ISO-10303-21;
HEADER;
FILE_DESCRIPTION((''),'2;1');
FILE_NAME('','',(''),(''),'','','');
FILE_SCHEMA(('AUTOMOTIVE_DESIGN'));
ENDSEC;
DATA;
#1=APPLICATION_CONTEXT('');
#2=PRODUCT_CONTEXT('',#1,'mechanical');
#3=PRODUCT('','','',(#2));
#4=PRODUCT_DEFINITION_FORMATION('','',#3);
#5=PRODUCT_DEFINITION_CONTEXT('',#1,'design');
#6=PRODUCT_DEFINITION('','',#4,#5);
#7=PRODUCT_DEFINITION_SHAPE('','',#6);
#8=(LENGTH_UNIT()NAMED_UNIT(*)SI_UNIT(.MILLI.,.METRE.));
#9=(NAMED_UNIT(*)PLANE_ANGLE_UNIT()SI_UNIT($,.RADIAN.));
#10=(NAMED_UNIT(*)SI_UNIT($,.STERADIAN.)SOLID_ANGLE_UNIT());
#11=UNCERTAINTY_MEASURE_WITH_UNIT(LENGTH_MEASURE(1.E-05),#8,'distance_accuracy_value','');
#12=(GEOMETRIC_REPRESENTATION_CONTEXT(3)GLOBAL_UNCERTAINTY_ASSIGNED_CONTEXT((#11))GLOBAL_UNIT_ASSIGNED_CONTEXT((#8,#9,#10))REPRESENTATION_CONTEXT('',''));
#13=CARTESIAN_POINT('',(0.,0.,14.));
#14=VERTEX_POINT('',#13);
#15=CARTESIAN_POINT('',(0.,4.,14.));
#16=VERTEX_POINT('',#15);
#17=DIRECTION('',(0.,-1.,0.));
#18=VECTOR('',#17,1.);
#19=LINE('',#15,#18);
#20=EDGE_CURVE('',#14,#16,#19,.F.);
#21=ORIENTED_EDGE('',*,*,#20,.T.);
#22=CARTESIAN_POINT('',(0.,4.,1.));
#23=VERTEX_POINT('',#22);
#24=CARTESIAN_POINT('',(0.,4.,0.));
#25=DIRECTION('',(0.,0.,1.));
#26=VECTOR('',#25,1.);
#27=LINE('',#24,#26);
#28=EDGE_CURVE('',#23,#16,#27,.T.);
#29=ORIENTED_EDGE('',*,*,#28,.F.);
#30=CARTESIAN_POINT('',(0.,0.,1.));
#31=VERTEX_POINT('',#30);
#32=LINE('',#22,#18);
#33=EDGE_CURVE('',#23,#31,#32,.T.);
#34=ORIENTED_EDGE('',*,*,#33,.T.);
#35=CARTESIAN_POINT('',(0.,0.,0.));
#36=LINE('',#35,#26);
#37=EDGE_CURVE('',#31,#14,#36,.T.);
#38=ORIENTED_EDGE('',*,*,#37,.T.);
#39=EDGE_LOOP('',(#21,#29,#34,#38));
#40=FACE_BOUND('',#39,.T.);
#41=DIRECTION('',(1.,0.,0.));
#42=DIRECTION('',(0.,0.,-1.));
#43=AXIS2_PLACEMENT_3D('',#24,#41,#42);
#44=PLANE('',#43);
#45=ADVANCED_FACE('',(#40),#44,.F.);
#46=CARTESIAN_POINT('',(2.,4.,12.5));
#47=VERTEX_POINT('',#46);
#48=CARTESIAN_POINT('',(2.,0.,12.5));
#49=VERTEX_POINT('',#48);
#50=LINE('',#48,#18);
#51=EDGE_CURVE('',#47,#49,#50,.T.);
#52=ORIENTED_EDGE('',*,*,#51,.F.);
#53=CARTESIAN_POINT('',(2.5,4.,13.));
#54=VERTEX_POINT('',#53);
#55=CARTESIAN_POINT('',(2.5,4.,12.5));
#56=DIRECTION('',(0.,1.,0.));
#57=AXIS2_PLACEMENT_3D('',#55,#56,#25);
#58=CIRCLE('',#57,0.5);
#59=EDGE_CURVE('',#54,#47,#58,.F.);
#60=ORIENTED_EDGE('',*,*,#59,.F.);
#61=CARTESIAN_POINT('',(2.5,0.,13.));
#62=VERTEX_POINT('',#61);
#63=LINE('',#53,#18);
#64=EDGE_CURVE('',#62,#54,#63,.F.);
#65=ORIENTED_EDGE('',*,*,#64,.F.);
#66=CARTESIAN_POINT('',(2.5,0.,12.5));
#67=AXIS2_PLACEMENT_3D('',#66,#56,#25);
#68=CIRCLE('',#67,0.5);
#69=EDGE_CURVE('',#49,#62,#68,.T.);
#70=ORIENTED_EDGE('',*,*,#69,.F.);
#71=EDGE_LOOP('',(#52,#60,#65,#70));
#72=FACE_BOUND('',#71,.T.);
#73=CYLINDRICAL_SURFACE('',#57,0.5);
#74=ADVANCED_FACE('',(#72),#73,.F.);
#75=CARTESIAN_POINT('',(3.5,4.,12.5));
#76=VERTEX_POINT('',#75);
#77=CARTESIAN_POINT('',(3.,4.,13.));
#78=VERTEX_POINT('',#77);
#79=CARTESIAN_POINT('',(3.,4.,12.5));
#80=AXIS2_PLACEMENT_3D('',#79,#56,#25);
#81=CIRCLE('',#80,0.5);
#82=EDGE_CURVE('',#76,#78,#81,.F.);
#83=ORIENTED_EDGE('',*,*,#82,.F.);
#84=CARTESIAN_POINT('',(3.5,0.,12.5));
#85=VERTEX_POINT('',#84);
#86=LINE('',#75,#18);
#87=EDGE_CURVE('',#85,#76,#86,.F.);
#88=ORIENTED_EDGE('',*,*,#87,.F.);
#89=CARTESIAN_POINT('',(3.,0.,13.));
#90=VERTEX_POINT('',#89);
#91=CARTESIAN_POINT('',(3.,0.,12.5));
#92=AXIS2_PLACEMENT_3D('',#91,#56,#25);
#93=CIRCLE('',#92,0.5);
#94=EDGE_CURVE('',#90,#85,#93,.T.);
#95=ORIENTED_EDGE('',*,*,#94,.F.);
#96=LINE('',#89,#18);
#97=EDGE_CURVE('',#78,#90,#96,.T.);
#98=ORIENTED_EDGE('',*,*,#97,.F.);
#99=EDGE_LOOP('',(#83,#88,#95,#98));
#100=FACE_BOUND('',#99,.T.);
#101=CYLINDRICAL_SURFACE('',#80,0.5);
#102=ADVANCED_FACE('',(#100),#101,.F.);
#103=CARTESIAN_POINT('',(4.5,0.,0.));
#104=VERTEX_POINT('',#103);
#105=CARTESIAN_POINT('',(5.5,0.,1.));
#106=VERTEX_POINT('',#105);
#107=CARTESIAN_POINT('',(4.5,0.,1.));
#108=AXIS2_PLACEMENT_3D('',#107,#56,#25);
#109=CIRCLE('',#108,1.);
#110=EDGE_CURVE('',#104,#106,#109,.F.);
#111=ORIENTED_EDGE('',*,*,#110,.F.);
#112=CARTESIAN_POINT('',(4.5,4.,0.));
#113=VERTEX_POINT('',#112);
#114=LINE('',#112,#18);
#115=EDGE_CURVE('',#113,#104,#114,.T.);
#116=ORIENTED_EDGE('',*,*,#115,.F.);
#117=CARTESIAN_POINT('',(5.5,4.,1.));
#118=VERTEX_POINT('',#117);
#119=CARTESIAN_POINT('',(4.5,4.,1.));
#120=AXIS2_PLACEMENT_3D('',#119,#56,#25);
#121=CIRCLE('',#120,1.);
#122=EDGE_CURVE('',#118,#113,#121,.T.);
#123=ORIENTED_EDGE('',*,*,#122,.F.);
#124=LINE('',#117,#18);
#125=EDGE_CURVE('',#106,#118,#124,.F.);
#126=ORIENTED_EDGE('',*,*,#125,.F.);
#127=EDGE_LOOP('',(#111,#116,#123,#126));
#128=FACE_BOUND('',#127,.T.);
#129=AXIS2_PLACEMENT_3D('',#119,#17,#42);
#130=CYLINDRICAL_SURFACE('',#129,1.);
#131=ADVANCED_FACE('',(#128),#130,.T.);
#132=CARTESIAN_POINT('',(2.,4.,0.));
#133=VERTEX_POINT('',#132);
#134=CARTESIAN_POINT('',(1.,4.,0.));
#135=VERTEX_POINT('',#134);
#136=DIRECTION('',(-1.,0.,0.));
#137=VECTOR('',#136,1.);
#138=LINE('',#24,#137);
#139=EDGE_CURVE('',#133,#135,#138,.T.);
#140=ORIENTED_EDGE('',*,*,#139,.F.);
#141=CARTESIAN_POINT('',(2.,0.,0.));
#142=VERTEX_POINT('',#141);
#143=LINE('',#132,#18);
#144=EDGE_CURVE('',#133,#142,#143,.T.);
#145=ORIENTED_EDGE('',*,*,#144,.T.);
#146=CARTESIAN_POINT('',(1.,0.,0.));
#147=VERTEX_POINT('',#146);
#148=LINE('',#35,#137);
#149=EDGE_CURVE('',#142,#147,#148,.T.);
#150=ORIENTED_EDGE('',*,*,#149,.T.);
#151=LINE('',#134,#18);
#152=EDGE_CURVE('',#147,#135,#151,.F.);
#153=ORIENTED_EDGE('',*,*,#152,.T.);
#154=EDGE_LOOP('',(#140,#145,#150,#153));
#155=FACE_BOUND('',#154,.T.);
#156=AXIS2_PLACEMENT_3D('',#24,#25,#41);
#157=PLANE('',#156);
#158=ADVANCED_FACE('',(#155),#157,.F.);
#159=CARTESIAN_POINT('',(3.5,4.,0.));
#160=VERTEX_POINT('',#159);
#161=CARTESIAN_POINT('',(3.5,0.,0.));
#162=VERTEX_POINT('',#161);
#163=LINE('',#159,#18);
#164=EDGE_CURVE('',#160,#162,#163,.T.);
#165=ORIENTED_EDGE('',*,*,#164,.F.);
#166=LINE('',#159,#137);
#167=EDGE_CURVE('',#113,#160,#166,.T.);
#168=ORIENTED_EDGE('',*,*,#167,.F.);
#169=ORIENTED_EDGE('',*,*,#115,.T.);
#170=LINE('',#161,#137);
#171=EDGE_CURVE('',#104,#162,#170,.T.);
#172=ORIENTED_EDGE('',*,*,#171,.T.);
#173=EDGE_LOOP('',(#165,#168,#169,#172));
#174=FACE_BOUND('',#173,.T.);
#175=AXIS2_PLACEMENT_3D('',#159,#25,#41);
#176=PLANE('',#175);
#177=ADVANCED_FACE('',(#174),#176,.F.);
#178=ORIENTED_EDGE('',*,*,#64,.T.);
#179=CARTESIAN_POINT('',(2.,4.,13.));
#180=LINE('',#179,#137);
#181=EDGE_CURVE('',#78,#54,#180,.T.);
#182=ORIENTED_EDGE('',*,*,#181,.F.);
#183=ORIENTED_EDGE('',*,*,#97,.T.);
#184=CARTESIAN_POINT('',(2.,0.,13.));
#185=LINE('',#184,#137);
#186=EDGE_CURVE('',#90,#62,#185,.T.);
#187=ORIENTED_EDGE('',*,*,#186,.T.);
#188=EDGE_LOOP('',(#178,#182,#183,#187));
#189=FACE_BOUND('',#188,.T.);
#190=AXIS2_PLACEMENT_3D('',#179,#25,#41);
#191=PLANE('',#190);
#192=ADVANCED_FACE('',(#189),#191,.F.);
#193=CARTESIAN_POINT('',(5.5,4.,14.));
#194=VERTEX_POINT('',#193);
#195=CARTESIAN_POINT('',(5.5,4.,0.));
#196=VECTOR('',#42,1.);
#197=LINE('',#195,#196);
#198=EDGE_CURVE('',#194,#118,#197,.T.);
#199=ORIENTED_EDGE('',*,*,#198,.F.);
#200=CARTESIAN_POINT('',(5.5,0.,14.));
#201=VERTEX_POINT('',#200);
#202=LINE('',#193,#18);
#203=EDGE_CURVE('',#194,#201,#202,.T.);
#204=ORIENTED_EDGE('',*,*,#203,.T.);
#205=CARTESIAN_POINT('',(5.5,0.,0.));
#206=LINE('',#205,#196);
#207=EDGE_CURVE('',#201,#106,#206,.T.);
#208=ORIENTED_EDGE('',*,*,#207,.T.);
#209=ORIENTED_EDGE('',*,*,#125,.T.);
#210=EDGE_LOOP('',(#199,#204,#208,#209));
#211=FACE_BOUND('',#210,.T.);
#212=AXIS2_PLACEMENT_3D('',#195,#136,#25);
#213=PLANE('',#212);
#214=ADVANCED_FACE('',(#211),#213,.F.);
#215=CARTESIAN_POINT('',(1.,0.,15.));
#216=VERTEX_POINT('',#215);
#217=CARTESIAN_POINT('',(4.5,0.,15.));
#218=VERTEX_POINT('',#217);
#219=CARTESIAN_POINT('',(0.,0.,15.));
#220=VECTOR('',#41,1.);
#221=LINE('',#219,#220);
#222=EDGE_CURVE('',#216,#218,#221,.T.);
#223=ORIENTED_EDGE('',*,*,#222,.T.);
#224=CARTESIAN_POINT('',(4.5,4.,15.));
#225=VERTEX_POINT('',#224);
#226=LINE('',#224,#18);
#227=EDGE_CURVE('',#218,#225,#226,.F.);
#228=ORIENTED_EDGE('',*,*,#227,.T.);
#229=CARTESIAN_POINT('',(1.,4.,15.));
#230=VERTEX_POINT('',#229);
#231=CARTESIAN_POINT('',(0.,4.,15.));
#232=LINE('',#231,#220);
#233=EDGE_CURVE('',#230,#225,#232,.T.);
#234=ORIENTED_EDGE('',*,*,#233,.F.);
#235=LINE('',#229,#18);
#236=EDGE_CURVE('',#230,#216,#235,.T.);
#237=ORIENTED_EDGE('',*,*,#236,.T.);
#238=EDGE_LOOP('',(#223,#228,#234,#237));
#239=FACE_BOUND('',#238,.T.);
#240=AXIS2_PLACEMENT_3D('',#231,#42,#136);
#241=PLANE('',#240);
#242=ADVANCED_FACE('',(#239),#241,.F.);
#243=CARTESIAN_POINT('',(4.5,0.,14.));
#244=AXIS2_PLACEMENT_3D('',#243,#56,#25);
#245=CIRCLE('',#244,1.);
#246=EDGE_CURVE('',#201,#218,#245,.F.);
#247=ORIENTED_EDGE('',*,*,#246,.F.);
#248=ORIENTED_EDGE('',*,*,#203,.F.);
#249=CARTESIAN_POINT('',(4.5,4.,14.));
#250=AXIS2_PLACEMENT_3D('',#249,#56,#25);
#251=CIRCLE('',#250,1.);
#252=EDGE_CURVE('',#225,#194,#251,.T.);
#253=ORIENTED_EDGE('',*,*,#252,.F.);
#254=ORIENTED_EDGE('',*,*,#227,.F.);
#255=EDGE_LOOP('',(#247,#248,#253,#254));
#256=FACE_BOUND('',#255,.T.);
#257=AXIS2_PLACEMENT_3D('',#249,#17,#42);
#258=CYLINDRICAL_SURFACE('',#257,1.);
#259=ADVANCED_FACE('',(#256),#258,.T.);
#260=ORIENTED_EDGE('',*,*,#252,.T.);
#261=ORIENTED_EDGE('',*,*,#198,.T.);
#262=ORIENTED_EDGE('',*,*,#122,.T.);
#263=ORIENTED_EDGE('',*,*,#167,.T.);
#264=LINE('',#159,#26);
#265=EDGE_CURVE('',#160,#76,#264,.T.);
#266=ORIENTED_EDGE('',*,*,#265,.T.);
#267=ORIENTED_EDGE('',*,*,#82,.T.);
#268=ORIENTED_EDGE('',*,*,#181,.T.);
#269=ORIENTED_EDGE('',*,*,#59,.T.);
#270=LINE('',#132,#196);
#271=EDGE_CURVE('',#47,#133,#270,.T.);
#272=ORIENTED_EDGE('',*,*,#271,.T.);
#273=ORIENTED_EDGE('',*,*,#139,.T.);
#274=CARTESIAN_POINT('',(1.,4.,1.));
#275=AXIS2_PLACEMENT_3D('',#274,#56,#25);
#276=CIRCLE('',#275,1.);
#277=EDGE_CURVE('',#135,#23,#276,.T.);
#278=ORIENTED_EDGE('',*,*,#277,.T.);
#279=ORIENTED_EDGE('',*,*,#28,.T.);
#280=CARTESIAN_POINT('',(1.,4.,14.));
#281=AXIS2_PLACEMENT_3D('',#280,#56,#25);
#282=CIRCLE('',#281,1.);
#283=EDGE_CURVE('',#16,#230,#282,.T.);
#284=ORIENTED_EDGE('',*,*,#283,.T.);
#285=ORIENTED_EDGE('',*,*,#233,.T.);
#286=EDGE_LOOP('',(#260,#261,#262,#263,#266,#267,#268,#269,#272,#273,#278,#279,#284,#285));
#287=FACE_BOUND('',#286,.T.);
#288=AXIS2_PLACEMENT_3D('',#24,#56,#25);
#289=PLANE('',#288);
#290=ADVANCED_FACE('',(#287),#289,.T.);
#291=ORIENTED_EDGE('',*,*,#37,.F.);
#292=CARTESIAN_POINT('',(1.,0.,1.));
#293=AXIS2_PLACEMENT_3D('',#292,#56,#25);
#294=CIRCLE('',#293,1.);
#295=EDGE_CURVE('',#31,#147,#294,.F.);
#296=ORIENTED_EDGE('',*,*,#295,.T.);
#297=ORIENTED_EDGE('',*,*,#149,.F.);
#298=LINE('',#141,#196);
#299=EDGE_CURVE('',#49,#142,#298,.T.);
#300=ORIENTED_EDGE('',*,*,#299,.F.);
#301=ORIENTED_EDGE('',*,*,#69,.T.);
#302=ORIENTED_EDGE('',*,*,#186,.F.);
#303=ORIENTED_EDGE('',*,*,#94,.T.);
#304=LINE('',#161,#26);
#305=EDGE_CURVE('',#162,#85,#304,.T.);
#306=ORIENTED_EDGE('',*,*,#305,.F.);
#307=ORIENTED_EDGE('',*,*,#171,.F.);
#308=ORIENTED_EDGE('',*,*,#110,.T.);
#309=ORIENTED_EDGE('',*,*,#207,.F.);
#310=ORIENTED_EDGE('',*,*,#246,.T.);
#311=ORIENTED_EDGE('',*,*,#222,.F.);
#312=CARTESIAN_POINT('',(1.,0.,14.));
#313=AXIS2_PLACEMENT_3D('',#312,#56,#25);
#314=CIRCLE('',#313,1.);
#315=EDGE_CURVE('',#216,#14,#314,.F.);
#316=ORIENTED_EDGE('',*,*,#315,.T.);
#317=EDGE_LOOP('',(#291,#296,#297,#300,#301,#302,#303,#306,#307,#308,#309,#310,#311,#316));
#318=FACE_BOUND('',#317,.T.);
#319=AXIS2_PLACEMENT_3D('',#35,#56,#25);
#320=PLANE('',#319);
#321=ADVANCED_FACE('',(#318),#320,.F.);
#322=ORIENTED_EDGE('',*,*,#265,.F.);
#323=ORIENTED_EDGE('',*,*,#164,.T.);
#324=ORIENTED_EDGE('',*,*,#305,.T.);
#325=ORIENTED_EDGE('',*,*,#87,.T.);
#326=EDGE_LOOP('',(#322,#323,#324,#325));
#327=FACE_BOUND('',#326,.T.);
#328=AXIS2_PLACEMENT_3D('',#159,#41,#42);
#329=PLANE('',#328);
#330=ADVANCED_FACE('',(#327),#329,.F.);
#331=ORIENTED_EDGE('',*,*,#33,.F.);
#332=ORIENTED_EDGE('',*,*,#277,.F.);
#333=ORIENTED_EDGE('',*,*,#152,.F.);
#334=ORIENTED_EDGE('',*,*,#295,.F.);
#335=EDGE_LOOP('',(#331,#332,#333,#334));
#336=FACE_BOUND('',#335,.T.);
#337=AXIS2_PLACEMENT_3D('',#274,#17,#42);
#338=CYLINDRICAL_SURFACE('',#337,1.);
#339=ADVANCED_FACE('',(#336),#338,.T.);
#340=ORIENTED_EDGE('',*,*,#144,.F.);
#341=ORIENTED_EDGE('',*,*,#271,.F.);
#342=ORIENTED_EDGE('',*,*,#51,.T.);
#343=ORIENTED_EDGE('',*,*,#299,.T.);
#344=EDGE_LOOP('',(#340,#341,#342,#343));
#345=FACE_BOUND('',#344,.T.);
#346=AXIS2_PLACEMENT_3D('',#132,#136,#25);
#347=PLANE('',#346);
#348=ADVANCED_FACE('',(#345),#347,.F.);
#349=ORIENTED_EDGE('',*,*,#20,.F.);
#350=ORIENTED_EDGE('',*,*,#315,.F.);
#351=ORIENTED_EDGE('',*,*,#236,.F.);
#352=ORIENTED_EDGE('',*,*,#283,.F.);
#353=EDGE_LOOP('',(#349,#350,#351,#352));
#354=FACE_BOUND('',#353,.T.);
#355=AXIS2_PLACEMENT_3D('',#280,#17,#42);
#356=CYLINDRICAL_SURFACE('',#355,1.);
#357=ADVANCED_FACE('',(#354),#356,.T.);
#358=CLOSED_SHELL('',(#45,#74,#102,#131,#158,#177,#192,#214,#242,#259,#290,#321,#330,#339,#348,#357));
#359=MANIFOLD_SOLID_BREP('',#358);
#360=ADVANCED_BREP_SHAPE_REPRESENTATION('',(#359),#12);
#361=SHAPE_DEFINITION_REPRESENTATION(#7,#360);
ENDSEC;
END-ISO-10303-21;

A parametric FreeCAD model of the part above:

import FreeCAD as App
import Part
import Sketcher
Q = App.Units.Quantity


def edges_at(feature, points):
    """Names of the edges that pass closest to the given points."""
    edges = feature.Shape.Edges
    near = lambda p: min(range(len(edges)), key=lambda i: edges[i].distToShape(Part.Vertex(*p))[0])
    return sorted({f"Edge{near(p) + 1}" for p in points})

doc = App.newDocument("Part")
body = doc.addObject("PartDesign::Body", "Body")

sketch1 = body.newObject("Sketcher::SketchObject", "Sketch")
sketch1.AttachmentSupport = (doc.getObject("XZ_Plane"), [""])
sketch1.MapMode = "FlatFace"
sketch1.addGeometry(Part.LineSegment(App.Vector(5.5, 0, 0), App.Vector(3.5, 0, 0)), False)
sketch1.addGeometry(Part.LineSegment(App.Vector(3.5, 0, 0), App.Vector(3.5, 13, 0)), False)
sketch1.addGeometry(Part.LineSegment(App.Vector(3.5, 13, 0), App.Vector(2, 13, 0)), False)
sketch1.addGeometry(Part.LineSegment(App.Vector(2, 13, 0), App.Vector(2, 0, 0)), False)
sketch1.addGeometry(Part.LineSegment(App.Vector(2, 0, 0), App.Vector(0, 0, 0)), False)
sketch1.addGeometry(Part.LineSegment(App.Vector(0, 0, 0), App.Vector(0, 15, 0)), False)
sketch1.addGeometry(Part.LineSegment(App.Vector(0, 15, 0), App.Vector(5.5, 15, 0)), False)
sketch1.addGeometry(Part.LineSegment(App.Vector(5.5, 15, 0), App.Vector(5.5, 0, 0)), False)
sketch1.addConstraint(Sketcher.Constraint("Coincident", 0, 2, 1, 1))
sketch1.addConstraint(Sketcher.Constraint("Coincident", 1, 2, 2, 1))
sketch1.addConstraint(Sketcher.Constraint("Coincident", 2, 2, 3, 1))
sketch1.addConstraint(Sketcher.Constraint("Coincident", 3, 2, 4, 1))
sketch1.addConstraint(Sketcher.Constraint("Coincident", 4, 2, 5, 1))
sketch1.addConstraint(Sketcher.Constraint("Coincident", 5, 2, 6, 1))
sketch1.addConstraint(Sketcher.Constraint("Coincident", 6, 2, 7, 1))
sketch1.addConstraint(Sketcher.Constraint("Coincident", 7, 2, 0, 1))
sketch1.addConstraint(Sketcher.Constraint("Horizontal", 0))
sketch1.addConstraint(Sketcher.Constraint("Vertical", 1))
sketch1.addConstraint(Sketcher.Constraint("Horizontal", 2))
sketch1.addConstraint(Sketcher.Constraint("Vertical", 3))
sketch1.addConstraint(Sketcher.Constraint("Horizontal", 4))
sketch1.addConstraint(Sketcher.Constraint("Vertical", 5))
sketch1.addConstraint(Sketcher.Constraint("Horizontal", 6))
sketch1.addConstraint(Sketcher.Constraint("Vertical", 7))
sketch1.addConstraint(Sketcher.Constraint("Coincident", 4, 2, -1, 1))
sketch1.addConstraint(Sketcher.Constraint("PointOnObject", 0, 2, -1))
sketch1.addConstraint(Sketcher.Constraint("Equal", 0, 4))
sketch1.addConstraint(Sketcher.Constraint("DistanceX", 0, 2, 0, 1, Q("2 mm")))
sketch1.addConstraint(Sketcher.Constraint("DistanceY", 1, 1, 1, 2, Q("13 mm")))
sketch1.addConstraint(Sketcher.Constraint("DistanceY", 5, 1, 5, 2, Q("15 mm")))
sketch1.addConstraint(Sketcher.Constraint("DistanceX", 2, 2, 2, 1, Q("1.5 mm")))
pad1 = body.newObject("PartDesign::Pad", "Pad")
pad1.Profile = sketch1
pad1.Length = 4
pad1.Reversed = True
doc.recompute()

fillet = body.newObject("PartDesign::Fillet", "Fillet")
fillet.Base = (pad1, edges_at(pad1, [
    (0, 2, 0),
    (5.5, 2, 0),
    (5.5, 2, 15),
    (0, 2, 15),
]))
fillet.Radius = 1
doc.recompute()

fillet2 = body.newObject("PartDesign::Fillet", "Fillet001")
fillet2.Base = (fillet, edges_at(fillet, [(2, 2, 13), (3.5, 2, 13)]))
fillet2.Radius = 0.5

doc.recompute()
